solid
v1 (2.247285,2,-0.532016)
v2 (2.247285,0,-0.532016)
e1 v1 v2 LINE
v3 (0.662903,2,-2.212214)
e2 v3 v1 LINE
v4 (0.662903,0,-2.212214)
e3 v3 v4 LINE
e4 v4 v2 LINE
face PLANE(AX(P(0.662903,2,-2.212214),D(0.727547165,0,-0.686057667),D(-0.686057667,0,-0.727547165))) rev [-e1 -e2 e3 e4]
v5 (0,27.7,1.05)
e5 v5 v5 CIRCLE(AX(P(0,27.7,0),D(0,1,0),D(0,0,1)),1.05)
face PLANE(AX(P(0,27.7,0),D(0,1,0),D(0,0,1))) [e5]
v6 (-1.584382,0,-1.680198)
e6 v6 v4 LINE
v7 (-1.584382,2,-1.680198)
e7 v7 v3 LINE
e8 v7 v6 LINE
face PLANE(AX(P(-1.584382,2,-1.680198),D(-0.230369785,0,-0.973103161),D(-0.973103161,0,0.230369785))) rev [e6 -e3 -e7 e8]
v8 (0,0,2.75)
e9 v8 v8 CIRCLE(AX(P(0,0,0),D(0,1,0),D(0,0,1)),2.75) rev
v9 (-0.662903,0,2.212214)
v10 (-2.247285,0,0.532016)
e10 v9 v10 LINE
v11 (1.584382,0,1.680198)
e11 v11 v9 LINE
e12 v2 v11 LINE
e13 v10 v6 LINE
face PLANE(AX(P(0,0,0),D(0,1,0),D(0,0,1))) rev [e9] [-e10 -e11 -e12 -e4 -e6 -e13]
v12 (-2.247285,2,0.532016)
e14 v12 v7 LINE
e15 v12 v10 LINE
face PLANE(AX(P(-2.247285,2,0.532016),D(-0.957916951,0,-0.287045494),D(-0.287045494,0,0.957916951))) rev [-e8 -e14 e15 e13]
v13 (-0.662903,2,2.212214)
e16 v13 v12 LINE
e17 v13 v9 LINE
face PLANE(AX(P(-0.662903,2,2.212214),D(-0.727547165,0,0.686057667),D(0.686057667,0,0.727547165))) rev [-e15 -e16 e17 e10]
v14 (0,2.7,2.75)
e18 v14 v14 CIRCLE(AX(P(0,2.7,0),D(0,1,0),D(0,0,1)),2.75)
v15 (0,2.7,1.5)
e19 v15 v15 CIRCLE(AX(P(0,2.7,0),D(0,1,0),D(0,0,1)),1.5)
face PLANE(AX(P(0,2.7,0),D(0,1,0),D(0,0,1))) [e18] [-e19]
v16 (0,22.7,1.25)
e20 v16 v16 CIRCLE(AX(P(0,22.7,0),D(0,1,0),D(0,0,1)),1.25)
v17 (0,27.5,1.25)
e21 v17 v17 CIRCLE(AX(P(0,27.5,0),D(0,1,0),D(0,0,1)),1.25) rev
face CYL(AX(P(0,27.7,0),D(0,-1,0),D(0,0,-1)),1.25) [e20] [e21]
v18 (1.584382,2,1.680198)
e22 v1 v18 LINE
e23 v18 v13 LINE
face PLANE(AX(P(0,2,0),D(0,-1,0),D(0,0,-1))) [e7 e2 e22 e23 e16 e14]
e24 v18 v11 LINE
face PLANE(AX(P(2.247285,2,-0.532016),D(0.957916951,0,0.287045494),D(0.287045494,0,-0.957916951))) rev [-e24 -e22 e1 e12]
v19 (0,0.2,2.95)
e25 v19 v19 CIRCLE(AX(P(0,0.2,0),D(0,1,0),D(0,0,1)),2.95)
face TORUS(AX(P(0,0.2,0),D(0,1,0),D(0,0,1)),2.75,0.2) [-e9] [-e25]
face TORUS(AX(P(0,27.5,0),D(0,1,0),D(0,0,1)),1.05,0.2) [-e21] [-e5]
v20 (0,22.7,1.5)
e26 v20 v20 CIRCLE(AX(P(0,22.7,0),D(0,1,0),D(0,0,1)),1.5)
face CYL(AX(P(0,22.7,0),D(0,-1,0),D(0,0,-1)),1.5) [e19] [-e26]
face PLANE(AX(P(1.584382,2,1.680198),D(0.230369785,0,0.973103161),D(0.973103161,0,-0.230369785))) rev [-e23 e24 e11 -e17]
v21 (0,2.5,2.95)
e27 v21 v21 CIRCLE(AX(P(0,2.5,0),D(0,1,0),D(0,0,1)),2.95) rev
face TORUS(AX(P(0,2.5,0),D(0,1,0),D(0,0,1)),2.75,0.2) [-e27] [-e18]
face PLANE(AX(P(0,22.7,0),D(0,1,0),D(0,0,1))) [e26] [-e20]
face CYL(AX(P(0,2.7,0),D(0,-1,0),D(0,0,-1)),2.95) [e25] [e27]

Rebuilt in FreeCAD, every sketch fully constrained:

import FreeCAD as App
import Part
import Sketcher
Q = App.Units.Quantity


def edges_at(feature, points):
    """Names of the edges that pass closest to the given points."""
    edges = feature.Shape.Edges
    near = lambda p: min(range(len(edges)), key=lambda i: edges[i].distToShape(Part.Vertex(*p))[0])
    return sorted({f"Edge{near(p) + 1}" for p in points})


def add_polygon(sketch, points):
    """Adds a closed chain of lines whose ends are joined by coincident constraints."""
    first, n = sketch.GeometryCount, len(points)
    for a, b in zip(points, points[1:] + points[:1]):
        sketch.addGeometry(Part.LineSegment(App.Vector(*a, 0), App.Vector(*b, 0)), False)
    for i in range(n):
        sketch.addConstraint(Sketcher.Constraint("Coincident", first + i, 2, first + (i + 1) % n, 1))

doc = App.newDocument("Part")
body = doc.addObject("PartDesign::Body", "Body")

sketch1 = body.newObject("Sketcher::SketchObject", "Sketch")
sketch1.AttachmentSupport = (doc.getObject("XZ_Plane"), [""])
sketch1.MapMode = "FlatFace"
sketch1.addGeometry(Part.Circle(App.Vector(0, 0, 0), App.Vector(0, 0, 1), 3), False)
sketch1.addConstraint([
    Sketcher.Constraint("Coincident", 0, 3, -1, 1),
    Sketcher.Constraint("Diameter", 0, Q("5.9 mm")),
])
pad1 = body.newObject("PartDesign::Pad", "Pad")
pad1.Profile = sketch1
pad1.Length = 2.7
pad1.Reversed = True

sketch2 = body.newObject("Sketcher::SketchObject", "Sketch001")
sketch2.AttachmentSupport = (doc.getObject("XZ_Plane"), [""])
sketch2.MapMode = "FlatFace"
sketch2.AttachmentOffset = App.Placement(App.Vector(0, 0, -2.7), App.Rotation())
sketch2.addGeometry(Part.Circle(App.Vector(0, 0, 0), App.Vector(0, 0, 1), 1.5), False)
sketch2.addConstraint([
    Sketcher.Constraint("Coincident", 0, 3, -1, 1),
    Sketcher.Constraint("Diameter", 0, Q("3 mm")),
])
pad2 = body.newObject("PartDesign::Pad", "Pad001")
pad2.Profile = sketch2
pad2.Length = 20
pad2.Reversed = True

sketch3 = body.newObject("Sketcher::SketchObject", "Sketch002")
sketch3.AttachmentSupport = (doc.getObject("XZ_Plane"), [""])
sketch3.MapMode = "FlatFace"
sketch3.AttachmentOffset = App.Placement(App.Vector(0, 0, -22.7), App.Rotation())
sketch3.addGeometry(Part.Circle(App.Vector(0, 0, 0), App.Vector(0, 0, 1), 1.2), False)
sketch3.addConstraint([
    Sketcher.Constraint("Coincident", 0, 3, -1, 1),
    Sketcher.Constraint("Diameter", 0, Q("2.5 mm")),
])
pad3 = body.newObject("PartDesign::Pad", "Pad002")
pad3.Profile = sketch3
pad3.Length = 5
pad3.Reversed = True

sketch4 = body.newObject("Sketcher::SketchObject", "Sketch003")
sketch4.AttachmentSupport = (doc.getObject("XZ_Plane"), [""])
sketch4.MapMode = "FlatFace"
add_polygon(sketch4, [(2.2, -0.5), (1.6, 1.7), (-0.7, 2.2), (-2.2, 0.5), (-1.6, -1.7), (0.7, -2.2)])
sketch4.addConstraint([
    Sketcher.Constraint("Symmetric", 0, 2, 3, 2, -1, 1),
    Sketcher.Constraint("Symmetric", 1, 2, 4, 2, -1, 1),
    Sketcher.Constraint("Symmetric", 2, 2, 5, 2, -1, 1),
    Sketcher.Constraint("Equal", 0, 1),
    Sketcher.Constraint("Equal", 1, 2),
    Sketcher.Constraint("Distance", 0, Q("2.309401 mm")),
    Sketcher.Constraint("DistanceY", -1, 1, 0, 2, Q("1.680198 mm")),
    Sketcher.Constraint("DistanceY", 2, 2, 1, 2, Q("1.680198 mm")),
    Sketcher.Constraint("DistanceY", 2, 2, 0, 2, Q("1.148182 mm")),
])
pocket1 = body.newObject("PartDesign::Pocket", "Pocket")
pocket1.Profile = sketch4
pocket1.Length = 2
doc.recompute()

fillet = body.newObject("PartDesign::Fillet", "Fillet")
fillet.Base = (pocket1, edges_at(pocket1, [(-1.25, 27.7, 0), (-2.95, 0, 0), (-2.95, 2.7, 0)]))
fillet.Radius = 0.2

doc.recompute()
